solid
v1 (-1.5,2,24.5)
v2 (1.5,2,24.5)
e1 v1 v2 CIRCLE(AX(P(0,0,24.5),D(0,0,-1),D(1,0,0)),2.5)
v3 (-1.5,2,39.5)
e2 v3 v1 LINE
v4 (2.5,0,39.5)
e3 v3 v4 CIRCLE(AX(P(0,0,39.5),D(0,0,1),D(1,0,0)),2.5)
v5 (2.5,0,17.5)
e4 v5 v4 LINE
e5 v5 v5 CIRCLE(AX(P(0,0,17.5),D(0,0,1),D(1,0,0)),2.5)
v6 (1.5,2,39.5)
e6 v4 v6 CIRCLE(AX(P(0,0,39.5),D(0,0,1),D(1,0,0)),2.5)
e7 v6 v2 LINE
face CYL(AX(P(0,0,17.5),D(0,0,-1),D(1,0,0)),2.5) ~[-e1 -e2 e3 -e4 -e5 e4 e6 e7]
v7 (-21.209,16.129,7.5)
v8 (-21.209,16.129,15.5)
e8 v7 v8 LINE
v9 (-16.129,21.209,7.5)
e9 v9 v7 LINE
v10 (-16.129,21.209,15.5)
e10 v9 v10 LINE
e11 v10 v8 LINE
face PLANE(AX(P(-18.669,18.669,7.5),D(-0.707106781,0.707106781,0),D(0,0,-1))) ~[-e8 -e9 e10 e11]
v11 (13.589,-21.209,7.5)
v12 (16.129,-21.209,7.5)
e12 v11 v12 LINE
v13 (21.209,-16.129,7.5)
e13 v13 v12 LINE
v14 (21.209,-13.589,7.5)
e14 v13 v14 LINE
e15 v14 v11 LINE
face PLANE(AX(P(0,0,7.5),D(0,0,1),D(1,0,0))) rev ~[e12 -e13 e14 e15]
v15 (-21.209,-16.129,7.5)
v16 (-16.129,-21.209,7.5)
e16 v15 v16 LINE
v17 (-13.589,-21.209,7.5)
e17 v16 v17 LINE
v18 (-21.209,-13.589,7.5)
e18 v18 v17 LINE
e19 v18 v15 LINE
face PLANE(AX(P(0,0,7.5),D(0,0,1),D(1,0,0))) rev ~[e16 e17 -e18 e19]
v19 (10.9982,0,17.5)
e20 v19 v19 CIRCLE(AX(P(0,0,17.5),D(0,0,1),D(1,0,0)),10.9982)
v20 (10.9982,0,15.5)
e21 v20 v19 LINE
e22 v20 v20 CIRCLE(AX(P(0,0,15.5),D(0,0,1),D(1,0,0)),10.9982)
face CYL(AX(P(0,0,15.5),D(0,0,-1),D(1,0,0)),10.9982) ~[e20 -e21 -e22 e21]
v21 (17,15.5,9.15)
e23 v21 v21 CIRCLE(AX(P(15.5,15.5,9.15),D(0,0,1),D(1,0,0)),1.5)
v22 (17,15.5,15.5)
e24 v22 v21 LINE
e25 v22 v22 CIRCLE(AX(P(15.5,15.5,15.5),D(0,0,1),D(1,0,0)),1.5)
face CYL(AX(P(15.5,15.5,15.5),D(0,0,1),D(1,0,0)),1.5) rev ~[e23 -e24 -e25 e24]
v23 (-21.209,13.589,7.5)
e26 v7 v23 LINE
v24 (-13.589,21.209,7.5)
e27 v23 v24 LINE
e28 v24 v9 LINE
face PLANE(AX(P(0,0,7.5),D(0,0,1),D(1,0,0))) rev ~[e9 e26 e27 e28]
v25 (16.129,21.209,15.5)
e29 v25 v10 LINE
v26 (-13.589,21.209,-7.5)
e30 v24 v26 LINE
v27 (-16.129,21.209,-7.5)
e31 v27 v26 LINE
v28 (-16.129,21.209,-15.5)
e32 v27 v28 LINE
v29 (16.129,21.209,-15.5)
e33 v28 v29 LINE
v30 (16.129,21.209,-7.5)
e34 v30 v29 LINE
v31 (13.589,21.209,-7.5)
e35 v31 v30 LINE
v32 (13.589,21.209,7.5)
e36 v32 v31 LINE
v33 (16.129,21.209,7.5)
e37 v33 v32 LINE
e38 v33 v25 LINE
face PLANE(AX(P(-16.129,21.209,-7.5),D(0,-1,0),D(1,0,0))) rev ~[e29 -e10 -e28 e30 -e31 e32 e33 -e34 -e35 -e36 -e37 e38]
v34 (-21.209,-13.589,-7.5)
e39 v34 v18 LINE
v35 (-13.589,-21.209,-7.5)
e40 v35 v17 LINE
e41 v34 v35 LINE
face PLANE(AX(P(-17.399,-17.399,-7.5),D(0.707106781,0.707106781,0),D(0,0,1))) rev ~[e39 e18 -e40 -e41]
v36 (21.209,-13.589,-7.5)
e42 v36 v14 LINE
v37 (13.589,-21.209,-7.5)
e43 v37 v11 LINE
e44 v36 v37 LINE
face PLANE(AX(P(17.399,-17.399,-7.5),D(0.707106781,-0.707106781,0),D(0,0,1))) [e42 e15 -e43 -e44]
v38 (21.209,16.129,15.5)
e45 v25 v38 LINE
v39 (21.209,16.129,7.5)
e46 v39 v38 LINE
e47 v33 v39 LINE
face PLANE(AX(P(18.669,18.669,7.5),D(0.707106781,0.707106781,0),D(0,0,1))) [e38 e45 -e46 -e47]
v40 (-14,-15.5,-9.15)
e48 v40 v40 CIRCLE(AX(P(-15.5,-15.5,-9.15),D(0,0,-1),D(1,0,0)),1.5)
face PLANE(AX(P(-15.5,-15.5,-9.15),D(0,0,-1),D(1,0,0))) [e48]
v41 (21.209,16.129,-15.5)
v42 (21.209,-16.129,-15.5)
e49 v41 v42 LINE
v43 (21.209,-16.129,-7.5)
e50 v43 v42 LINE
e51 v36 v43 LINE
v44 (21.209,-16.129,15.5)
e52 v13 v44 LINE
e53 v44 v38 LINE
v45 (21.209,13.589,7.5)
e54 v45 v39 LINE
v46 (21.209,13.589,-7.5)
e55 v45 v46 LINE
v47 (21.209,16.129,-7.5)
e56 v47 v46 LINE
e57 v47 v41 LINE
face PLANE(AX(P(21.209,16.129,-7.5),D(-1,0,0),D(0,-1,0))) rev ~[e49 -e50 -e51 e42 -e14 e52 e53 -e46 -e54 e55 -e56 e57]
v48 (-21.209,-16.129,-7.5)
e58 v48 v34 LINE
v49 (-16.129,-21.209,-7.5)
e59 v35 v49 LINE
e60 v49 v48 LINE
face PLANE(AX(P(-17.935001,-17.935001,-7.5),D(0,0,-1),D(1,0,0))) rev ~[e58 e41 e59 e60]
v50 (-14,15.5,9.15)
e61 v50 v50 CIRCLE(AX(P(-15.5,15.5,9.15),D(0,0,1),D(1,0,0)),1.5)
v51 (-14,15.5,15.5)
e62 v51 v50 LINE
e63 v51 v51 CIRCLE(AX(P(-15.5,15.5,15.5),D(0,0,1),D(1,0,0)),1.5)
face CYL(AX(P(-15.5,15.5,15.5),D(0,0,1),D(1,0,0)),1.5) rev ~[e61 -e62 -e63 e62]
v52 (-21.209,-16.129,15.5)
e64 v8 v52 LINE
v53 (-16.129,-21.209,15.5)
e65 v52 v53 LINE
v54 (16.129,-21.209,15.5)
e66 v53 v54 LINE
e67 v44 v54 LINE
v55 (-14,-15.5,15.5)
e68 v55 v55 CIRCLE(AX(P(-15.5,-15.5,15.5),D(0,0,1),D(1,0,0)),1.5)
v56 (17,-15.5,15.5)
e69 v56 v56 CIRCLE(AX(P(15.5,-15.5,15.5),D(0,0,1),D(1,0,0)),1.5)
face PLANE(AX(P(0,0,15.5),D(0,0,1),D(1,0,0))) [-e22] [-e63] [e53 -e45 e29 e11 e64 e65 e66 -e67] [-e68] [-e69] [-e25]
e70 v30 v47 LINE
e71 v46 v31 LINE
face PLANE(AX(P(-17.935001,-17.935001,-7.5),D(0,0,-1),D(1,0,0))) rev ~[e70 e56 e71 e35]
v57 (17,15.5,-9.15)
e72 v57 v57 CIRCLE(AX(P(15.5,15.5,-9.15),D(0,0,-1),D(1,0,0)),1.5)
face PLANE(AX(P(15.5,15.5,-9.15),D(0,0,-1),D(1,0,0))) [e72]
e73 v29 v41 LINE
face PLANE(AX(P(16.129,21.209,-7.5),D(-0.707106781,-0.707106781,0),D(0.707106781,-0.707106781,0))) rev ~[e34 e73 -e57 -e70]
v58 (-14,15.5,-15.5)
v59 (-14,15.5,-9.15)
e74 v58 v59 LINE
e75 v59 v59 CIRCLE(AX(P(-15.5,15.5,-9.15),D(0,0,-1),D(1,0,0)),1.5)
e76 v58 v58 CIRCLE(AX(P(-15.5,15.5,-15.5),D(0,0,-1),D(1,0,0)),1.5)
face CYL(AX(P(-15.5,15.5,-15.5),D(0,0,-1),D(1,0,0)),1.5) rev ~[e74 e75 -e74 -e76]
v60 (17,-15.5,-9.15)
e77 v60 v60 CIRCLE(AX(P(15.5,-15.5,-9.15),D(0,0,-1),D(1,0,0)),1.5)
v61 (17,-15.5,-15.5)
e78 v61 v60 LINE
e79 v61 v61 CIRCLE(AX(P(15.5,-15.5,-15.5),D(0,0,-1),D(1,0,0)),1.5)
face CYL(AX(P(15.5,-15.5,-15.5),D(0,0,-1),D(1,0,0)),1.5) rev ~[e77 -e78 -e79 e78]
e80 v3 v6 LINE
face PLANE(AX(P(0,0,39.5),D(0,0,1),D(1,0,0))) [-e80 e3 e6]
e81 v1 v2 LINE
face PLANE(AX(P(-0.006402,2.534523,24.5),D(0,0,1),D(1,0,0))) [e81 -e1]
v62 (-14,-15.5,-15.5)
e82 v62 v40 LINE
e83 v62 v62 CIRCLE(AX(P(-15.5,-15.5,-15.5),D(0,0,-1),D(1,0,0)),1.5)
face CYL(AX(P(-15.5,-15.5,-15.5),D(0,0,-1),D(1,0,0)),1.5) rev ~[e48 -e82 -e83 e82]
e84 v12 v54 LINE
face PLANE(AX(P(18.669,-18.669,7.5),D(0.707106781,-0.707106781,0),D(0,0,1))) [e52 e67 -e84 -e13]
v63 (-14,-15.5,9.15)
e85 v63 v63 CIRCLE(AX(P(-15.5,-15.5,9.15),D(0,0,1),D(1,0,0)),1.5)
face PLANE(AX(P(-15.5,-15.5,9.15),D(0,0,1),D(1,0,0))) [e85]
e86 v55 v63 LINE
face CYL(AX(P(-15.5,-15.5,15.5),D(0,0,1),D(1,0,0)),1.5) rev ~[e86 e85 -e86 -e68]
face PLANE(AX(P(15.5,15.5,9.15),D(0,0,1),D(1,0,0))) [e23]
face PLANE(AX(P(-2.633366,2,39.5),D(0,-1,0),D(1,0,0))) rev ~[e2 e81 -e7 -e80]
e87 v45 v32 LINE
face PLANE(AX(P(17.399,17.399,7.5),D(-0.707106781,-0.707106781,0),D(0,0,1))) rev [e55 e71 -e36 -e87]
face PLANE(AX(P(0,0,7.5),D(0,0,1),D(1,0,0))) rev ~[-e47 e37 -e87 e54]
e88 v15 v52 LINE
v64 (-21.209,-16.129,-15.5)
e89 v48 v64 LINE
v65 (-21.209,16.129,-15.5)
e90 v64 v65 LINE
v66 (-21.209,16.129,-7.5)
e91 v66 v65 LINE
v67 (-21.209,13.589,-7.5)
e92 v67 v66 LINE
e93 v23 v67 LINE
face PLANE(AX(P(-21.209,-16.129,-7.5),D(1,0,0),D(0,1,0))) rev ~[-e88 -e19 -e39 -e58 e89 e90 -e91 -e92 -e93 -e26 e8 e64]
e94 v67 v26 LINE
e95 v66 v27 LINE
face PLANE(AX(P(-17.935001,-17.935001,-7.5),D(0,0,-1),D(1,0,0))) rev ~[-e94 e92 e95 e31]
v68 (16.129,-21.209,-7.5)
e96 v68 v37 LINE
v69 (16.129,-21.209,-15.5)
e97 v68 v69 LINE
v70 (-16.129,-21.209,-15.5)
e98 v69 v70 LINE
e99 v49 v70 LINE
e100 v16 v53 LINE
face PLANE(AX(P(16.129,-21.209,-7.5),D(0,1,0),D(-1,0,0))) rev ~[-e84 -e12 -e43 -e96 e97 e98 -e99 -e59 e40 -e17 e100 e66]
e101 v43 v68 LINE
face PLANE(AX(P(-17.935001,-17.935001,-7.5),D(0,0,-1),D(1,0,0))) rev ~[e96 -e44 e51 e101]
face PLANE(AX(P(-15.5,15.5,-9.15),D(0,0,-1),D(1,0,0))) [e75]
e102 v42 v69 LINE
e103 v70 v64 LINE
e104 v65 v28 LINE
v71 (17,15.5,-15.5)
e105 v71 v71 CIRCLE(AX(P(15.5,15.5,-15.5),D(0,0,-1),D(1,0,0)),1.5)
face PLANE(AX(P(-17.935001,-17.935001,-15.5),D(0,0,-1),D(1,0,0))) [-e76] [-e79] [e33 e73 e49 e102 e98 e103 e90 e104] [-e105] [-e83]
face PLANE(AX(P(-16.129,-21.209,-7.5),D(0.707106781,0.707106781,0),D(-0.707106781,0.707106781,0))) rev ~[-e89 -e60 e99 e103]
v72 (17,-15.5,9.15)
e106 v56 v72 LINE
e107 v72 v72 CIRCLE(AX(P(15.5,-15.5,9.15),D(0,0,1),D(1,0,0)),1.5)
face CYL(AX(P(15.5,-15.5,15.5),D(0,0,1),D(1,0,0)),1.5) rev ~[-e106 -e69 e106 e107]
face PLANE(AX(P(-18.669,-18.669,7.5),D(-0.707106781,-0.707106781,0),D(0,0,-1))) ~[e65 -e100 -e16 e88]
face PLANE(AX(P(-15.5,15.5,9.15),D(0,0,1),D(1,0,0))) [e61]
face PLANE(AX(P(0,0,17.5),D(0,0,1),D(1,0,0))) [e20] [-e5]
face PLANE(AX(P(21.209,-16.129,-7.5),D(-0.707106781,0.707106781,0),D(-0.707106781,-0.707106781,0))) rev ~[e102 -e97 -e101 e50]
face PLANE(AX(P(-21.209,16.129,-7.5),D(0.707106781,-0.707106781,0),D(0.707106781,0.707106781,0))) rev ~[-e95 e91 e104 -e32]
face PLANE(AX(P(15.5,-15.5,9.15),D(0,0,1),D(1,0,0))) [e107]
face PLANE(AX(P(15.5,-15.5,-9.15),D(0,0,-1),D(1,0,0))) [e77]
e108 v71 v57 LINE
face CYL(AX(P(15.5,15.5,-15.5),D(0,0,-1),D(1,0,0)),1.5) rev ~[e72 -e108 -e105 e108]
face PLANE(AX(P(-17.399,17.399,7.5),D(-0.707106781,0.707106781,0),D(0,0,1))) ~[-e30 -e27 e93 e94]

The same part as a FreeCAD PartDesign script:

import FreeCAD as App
import Part
import Sketcher


def edges_at(feature, points):
    """Names of the edges that pass closest to the given points."""
    edges = feature.Shape.Edges
    near = lambda p: min(range(len(edges)), key=lambda i: edges[i].distToShape(Part.Vertex(*p))[0])
    return sorted({f"Edge{near(p) + 1}" for p in points})


def add_polygon(sketch, points):
    """Adds a closed chain of lines whose ends are joined by coincident constraints."""
    first, n = sketch.GeometryCount, len(points)
    for a, b in zip(points, points[1:] + points[:1]):
        sketch.addGeometry(Part.LineSegment(App.Vector(*a, 0), App.Vector(*b, 0)), False)
    for i in range(n):
        sketch.addConstraint(Sketcher.Constraint("Coincident", first + i, 2, first + (i + 1) % n, 1))

doc = App.newDocument("Part")
params = doc.addObject("Spreadsheet::Sheet", "Params")
for row, (alias, value) in enumerate([
    ("pad1_length", "15 mm"),
    ("chamfer_size", "7.62 mm"),
    ("pad2_length", "8 mm"),
    ("chamfer2_size", "5.08 mm"),
    ("pad3_length", "8 mm"),
    ("pad4_length", "2 mm"),
    ("sketch5_diameter", "5 mm"),
    ("pad5_length", "22 mm"),
    ("pocket1_length", "15 mm"),
    ("sketch7_diameter", "3 mm"),
    ("pocket2_length", "6.35 mm"),
    ("sketch8_diameter", "3 mm"),
    ("pocket3_length", "6.35 mm"),
], start=1):
    params.set(f"A{row}", alias)
    params.set(f"B{row}", "=" + value)
    params.setAlias(f"B{row}", alias)

body = doc.addObject("PartDesign::Body", "Body")

sketch1 = body.newObject("Sketcher::SketchObject", "Sketch")
sketch1.AttachmentSupport = (doc.getObject("XY_Plane"), [""])
sketch1.MapMode = "FlatFace"
add_polygon(sketch1, [(-21.209, 21.209), (-21.209, -21.209), (21.209, -21.209), (21.209, 21.209)])
sketch1.addConstraint([
    Sketcher.Constraint("Vertical", 0),
    Sketcher.Constraint("Horizontal", 1),
    Sketcher.Constraint("Vertical", 2),
    Sketcher.Constraint("Horizontal", 3),
    Sketcher.Constraint("Symmetric", 0, 2, 2, 2, -1, 1),
    Sketcher.Constraint("Equal", 3, 0),
    Sketcher.Constraint("DistanceX", 1, 1, 1, 2, 42.418),
])
pad1 = body.newObject("PartDesign::Pad", "Pad")
pad1.Profile = sketch1
pad1.setExpression("Length", "Params.pad1_length")
pad1.Midplane = True
doc.recompute()

chamfer = body.newObject("PartDesign::Chamfer", "Chamfer")
chamfer.Base = (pad1, edges_at(pad1, [
    (21.209, 21.209, 0),
    (-21.209, 21.209, 0),
    (-21.209, -21.209, 0),
    (21.209, -21.209, 0),
]))
chamfer.setExpression("Size", "Params.chamfer_size")

sketch2 = body.newObject("Sketcher::SketchObject", "Sketch001")
sketch2.AttachmentSupport = (doc.getObject("XY_Plane"), [""])
sketch2.MapMode = "FlatFace"
sketch2.AttachmentOffset = App.Placement(App.Vector(0, 0, 7.5), App.Rotation())
add_polygon(sketch2, [(21.209, 21.209), (-21.209, 21.209), (-21.209, -21.209), (21.209, -21.209)])
sketch2.addConstraint([
    Sketcher.Constraint("Horizontal", 0),
    Sketcher.Constraint("Vertical", 1),
    Sketcher.Constraint("Horizontal", 2),
    Sketcher.Constraint("Vertical", 3),
    Sketcher.Constraint("Symmetric", 0, 2, 2, 2, -1, 1),
    Sketcher.Constraint("Equal", 2, 1),
    Sketcher.Constraint("DistanceX", 0, 2, 0, 1, 42.418),
])
pad2 = body.newObject("PartDesign::Pad", "Pad001")
pad2.Profile = sketch2
pad2.setExpression("Length", "Params.pad2_length")
doc.recompute()

chamfer2 = body.newObject("PartDesign::Chamfer", "Chamfer001")
chamfer2.Base = (pad2, edges_at(pad2, [
    (21.209, 21.209, 11.5),
    (-21.209, 21.209, 11.5),
    (-21.209, -21.209, 11.5),
    (21.209, -21.209, 11.5),
]))
chamfer2.setExpression("Size", "Params.chamfer2_size")

sketch3 = body.newObject("Sketcher::SketchObject", "Sketch002")
sketch3.AttachmentSupport = (doc.getObject("XY_Plane"), [""])
sketch3.MapMode = "FlatFace"
sketch3.AttachmentOffset = App.Placement(App.Vector(0, 0, -7.5), App.Rotation())
add_polygon(sketch3, [(-16.129, -21.209), (-21.209, -16.129), (-21.209, 16.129), (-16.129, 21.209), (16.129, 21.209), (21.209, 16.129), (21.209, -16.129), (16.129, -21.209)])
sketch3.addConstraint([
    Sketcher.Constraint("Vertical", 1),
    Sketcher.Constraint("Horizontal", 3),
    Sketcher.Constraint("Vertical", 5),
    Sketcher.Constraint("Horizontal", 7),
    Sketcher.Constraint("Symmetric", 0, 2, 4, 2, -1, 1),
    Sketcher.Constraint("Symmetric", 2, 2, 6, 2, -1, 1),
    Sketcher.Constraint("Perpendicular", 0, 2),
    Sketcher.Constraint("Perpendicular", 2, 4),
    Sketcher.Constraint("Perpendicular", 4, 6),
    Sketcher.Constraint("Horizontal", 1, 2, 4, 2),
    Sketcher.Constraint("Vertical", 3, 2, 6, 2),
    Sketcher.Constraint("Equal", 7, 1),
    Sketcher.Constraint("DistanceX", 3, 1, 3, 2, 32.258),
    Sketcher.Constraint("DistanceX", 1, 2, 2, 2, 5.08),
])
pad3 = body.newObject("PartDesign::Pad", "Pad002")
pad3.Profile = sketch3
pad3.setExpression("Length", "Params.pad3_length")
pad3.Reversed = True

sketch4 = body.newObject("Sketcher::SketchObject", "Sketch003")
sketch4.AttachmentSupport = (doc.getObject("XY_Plane"), [""])
sketch4.MapMode = "FlatFace"
sketch4.AttachmentOffset = App.Placement(App.Vector(0, 0, 15.5), App.Rotation())
sketch4.addGeometry(Part.Circle(App.Vector(0, 0, 0), App.Vector(0, 0, 1), 10.9982), False)
sketch4.addConstraint([
    Sketcher.Constraint("Coincident", 0, 3, -1, 1),
    Sketcher.Constraint("Diameter", 0, 21.9964),
])
pad4 = body.newObject("PartDesign::Pad", "Pad003")
pad4.Profile = sketch4
pad4.setExpression("Length", "Params.pad4_length")

sketch5 = body.newObject("Sketcher::SketchObject", "Sketch004")
sketch5.AttachmentSupport = (doc.getObject("XY_Plane"), [""])
sketch5.MapMode = "FlatFace"
sketch5.AttachmentOffset = App.Placement(App.Vector(0, 0, 17.5), App.Rotation())
sketch5.addGeometry(Part.Circle(App.Vector(0, 0, 0), App.Vector(0, 0, 1), 2.5), False)
sketch5.addConstraint([
    Sketcher.Constraint("Coincident", 0, 3, -1, 1),
    Sketcher.Constraint("Diameter", 0, 5.0),
])
sketch5.setExpression("Constraints[1]", "Params.sketch5_diameter")
pad5 = body.newObject("PartDesign::Pad", "Pad004")
pad5.Profile = sketch5
pad5.setExpression("Length", "Params.pad5_length")

sketch6 = body.newObject("Sketcher::SketchObject", "Sketch005")
sketch6.AttachmentSupport = (doc.getObject("XY_Plane"), [""])
sketch6.MapMode = "FlatFace"
sketch6.AttachmentOffset = App.Placement(App.Vector(0, 0, 39.5), App.Rotation())
add_polygon(sketch6, [(2.620363, 2.933404), (-2.633366, 2.933404), (-2.633366, 2), (2.620363, 2)])
sketch6.addConstraint([
    Sketcher.Constraint("Horizontal", 0),
    Sketcher.Constraint("Vertical", 1),
    Sketcher.Constraint("Horizontal", 2),
    Sketcher.Constraint("Vertical", 3),
    Sketcher.Constraint("DistanceY", -1, 1, 1, 2, 2.0),
    Sketcher.Constraint("DistanceX", 0, 2, 0, 1, 5.253729),
    Sketcher.Constraint("DistanceY", 1, 2, 1, 1, 0.933404),
    Sketcher.Constraint("DistanceX", 0, 2, -1, 1, 2.633366),
])
pocket1 = body.newObject("PartDesign::Pocket", "Pocket")
pocket1.Profile = sketch6
pocket1.setExpression("Length", "Params.pocket1_length")

sketch7 = body.newObject("Sketcher::SketchObject", "Sketch006")
sketch7.AttachmentSupport = (doc.getObject("XY_Plane"), [""])
sketch7.MapMode = "FlatFace"
sketch7.AttachmentOffset = App.Placement(App.Vector(0, 0, 15.5), App.Rotation())
sketch7.addGeometry([
    Part.Circle(App.Vector(-15.5, 15.5, 0), App.Vector(0, 0, 1), 1.5),
    Part.Circle(App.Vector(15.5, 15.5, 0), App.Vector(0, 0, 1), 1.5),
    Part.Circle(App.Vector(15.5, -15.5, 0), App.Vector(0, 0, 1), 1.5),
    Part.Circle(App.Vector(-15.5, -15.5, 0), App.Vector(0, 0, 1), 1.5),
], False)
sketch7.addConstraint([
    Sketcher.Constraint("Equal", 0, 1),
    Sketcher.Constraint("Equal", 1, 2),
    Sketcher.Constraint("Equal", 2, 3),
    Sketcher.Constraint("Symmetric", 0, 3, 2, 3, -1, 1),
    Sketcher.Constraint("Symmetric", 1, 3, 3, 3, -1, 1),
    Sketcher.Constraint("Symmetric", 0, 3, 1, 3, -2),
    Sketcher.Constraint("Diameter", 0, 3.0),
    Sketcher.Constraint("DistanceX", 0, 3, 1, 3, 31.0),
    Sketcher.Constraint("DistanceY", 2, 3, 1, 3, 31.0),
])
sketch7.setExpression("Constraints[6]", "Params.sketch7_diameter")
pocket2 = body.newObject("PartDesign::Pocket", "Pocket001")
pocket2.Profile = sketch7
pocket2.setExpression("Length", "Params.pocket2_length")
body2 = doc.addObject("PartDesign::Body", "Body001")
doc.recompute()

body2.BaseFeature = body
doc.recompute()

sketch8 = body.newObject("Sketcher::SketchObject", "Sketch007")
sketch8.AttachmentSupport = (doc.getObject("XY_Plane"), [""])
sketch8.MapMode = "FlatFace"
sketch8.AttachmentOffset = App.Placement(App.Vector(0, 0, -15.5), App.Rotation())
sketch8.addGeometry([
    Part.Circle(App.Vector(-15.5, -15.5, 0), App.Vector(0, 0, 1), 1.5),
    Part.Circle(App.Vector(15.5, -15.5, 0), App.Vector(0, 0, 1), 1.5),
    Part.Circle(App.Vector(15.5, 15.5, 0), App.Vector(0, 0, 1), 1.5),
    Part.Circle(App.Vector(-15.5, 15.5, 0), App.Vector(0, 0, 1), 1.5),
], False)
sketch8.addConstraint([
    Sketcher.Constraint("Equal", 0, 1),
    Sketcher.Constraint("Equal", 1, 2),
    Sketcher.Constraint("Equal", 2, 3),
    Sketcher.Constraint("Symmetric", 0, 3, 2, 3, -1, 1),
    Sketcher.Constraint("Symmetric", 1, 3, 3, 3, -1, 1),
    Sketcher.Constraint("Symmetric", 0, 3, 1, 3, -2),
    Sketcher.Constraint("Diameter", 0, 3.0),
    Sketcher.Constraint("DistanceX", 0, 3, 1, 3, 31.0),
    Sketcher.Constraint("DistanceY", 1, 3, 2, 3, 31.0),
])
sketch8.setExpression("Constraints[6]", "Params.sketch8_diameter")
pocket3 = body.newObject("PartDesign::Pocket", "Pocket002")
pocket3.Profile = sketch8
pocket3.setExpression("Length", "Params.pocket3_length")
pocket3.Reversed = True
body.Visibility = False

doc.recompute()
